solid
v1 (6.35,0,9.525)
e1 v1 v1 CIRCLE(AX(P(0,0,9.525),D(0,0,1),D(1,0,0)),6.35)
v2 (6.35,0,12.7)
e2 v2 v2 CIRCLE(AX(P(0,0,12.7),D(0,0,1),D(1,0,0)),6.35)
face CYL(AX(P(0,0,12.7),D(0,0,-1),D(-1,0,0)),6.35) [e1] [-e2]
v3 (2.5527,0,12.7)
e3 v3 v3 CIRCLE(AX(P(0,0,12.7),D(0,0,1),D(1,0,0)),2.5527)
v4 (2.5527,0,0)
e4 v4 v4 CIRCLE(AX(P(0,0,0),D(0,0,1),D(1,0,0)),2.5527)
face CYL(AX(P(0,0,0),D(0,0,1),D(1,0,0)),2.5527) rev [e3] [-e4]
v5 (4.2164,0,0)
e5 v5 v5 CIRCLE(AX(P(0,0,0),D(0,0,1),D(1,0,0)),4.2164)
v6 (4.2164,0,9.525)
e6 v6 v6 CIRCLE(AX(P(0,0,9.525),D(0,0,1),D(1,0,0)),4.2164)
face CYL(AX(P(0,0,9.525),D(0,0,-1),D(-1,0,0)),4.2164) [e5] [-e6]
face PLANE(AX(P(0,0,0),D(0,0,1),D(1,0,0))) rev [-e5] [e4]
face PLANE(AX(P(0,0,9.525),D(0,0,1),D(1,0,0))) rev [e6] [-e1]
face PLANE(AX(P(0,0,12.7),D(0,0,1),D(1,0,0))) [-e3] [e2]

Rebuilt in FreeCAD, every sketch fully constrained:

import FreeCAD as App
import Part
import Sketcher

V = App.Vector
Q = App.Units.Quantity

doc = App.newDocument("Part")
params = doc.addObject("Spreadsheet::Sheet", "Params")
for row, (alias, value) in enumerate([
    ("sketch1_diameter", "0.332 in"),
    ("pad1_length", "0.375 in"),
    ("sketch2_diameter", "0.5 in"),
    ("pad2_length", "0.125 in"),
    ("sketch3_diameter", "0.201 in"),
], start=1):
    params.set(f"A{row}", alias)
    params.set(f"B{row}", "=" + value)
    params.setAlias(f"B{row}", alias)

body = doc.addObject("PartDesign::Body", "Body")

sketch1 = body.newObject("Sketcher::SketchObject", "Sketch")
sketch1.AttachmentSupport = (doc.getObject("XY_Plane"), [""])
sketch1.MapMode = "FlatFace"
sketch1.addGeometry(Part.Circle(V(0, 0, 0), V(0, 0, 1), 4.2), False)
sketch1.addConstraint([
    Sketcher.Constraint("Coincident", 0, 3, -1, 1),
    Sketcher.Constraint("Diameter", 0, Q("0.332 in")),
])
sketch1.setExpression("Constraints[1]", "Params.sketch1_diameter")
pad1 = body.newObject("PartDesign::Pad", "Pad")
pad1.Profile = sketch1
pad1.setExpression("Length", "Params.pad1_length")

sketch2 = body.newObject("Sketcher::SketchObject", "Sketch001")
sketch2.AttachmentSupport = (doc.getObject("XY_Plane"), [""])
sketch2.MapMode = "FlatFace"
sketch2.AttachmentOffset = App.Placement(V(0, 0, 0.375 * 25.4), App.Rotation())
sketch2.addGeometry(Part.Circle(V(0, 0, 0), V(0, 0, 1), 6), False)
sketch2.addConstraint([
    Sketcher.Constraint("Coincident", 0, 3, -1, 1),
    Sketcher.Constraint("Diameter", 0, Q("0.5 in")),
])
sketch2.setExpression("Constraints[1]", "Params.sketch2_diameter")
pad2 = body.newObject("PartDesign::Pad", "Pad001")
pad2.Profile = sketch2
pad2.setExpression("Length", "Params.pad2_length")

sketch3 = body.newObject("Sketcher::SketchObject", "Sketch002")
sketch3.AttachmentSupport = (doc.getObject("XY_Plane"), [""])
sketch3.MapMode = "FlatFace"
sketch3.AttachmentOffset = App.Placement(V(0, 0, 0.5 * 25.4), App.Rotation())
sketch3.addGeometry(Part.Circle(V(0, 0, 0), V(0, 0, 1), 2.6), False)
sketch3.addConstraint([
    Sketcher.Constraint("Coincident", 0, 3, -1, 1),
    Sketcher.Constraint("Diameter", 0, Q("0.201 in")),
])
sketch3.setExpression("Constraints[1]", "Params.sketch3_diameter")
pocket1 = body.newObject("PartDesign::Pocket", "Pocket")
pocket1.Profile = sketch3
pocket1.Type = "ThroughAll"

doc.recompute()
